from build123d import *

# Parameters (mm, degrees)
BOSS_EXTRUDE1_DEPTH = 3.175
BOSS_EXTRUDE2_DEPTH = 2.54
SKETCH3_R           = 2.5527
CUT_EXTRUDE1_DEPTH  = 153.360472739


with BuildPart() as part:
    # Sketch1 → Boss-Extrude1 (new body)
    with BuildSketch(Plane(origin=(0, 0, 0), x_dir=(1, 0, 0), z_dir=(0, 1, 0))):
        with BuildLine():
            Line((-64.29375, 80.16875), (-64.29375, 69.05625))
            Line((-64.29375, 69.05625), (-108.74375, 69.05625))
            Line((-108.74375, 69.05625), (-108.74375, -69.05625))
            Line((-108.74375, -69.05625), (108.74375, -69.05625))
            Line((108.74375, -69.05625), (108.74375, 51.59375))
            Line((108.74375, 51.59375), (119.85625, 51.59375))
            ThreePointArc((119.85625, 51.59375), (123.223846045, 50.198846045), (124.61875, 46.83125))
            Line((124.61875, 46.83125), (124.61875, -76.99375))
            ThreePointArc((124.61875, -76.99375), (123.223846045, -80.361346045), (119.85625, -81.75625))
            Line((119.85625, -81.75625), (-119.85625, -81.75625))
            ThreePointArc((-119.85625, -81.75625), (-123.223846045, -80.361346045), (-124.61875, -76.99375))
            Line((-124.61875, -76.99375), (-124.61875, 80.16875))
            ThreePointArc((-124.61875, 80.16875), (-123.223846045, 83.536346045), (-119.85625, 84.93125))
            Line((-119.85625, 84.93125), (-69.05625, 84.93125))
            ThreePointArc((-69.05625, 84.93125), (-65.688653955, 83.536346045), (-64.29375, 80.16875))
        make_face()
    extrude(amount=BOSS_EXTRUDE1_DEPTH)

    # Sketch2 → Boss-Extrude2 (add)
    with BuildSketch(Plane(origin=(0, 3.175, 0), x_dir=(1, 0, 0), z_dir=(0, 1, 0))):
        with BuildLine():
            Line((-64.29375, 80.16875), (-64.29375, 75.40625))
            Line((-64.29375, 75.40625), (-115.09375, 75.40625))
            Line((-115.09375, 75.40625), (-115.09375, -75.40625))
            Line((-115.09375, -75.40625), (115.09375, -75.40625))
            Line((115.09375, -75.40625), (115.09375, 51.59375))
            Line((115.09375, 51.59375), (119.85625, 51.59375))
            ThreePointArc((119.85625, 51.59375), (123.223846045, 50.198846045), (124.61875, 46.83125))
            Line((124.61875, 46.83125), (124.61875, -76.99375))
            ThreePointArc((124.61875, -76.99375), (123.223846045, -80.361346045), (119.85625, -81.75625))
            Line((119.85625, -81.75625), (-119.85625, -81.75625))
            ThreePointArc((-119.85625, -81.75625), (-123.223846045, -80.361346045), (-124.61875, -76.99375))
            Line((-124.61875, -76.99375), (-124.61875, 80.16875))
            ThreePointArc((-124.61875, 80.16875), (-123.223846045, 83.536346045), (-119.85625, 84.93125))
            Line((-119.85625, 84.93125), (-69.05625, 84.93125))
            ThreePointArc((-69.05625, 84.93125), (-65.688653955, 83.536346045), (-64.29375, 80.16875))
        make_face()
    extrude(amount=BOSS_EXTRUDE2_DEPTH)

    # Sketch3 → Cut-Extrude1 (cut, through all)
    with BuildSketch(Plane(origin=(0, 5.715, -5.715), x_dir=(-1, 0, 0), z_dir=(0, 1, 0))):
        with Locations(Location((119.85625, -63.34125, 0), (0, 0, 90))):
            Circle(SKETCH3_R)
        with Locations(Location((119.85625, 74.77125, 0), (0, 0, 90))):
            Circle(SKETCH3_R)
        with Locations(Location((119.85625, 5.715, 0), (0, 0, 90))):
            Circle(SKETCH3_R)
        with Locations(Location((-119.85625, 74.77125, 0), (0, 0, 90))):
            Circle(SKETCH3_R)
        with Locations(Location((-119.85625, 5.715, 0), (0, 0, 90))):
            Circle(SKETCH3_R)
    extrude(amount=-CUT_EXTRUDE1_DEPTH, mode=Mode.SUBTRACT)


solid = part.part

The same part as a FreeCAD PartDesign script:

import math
import FreeCAD as App
import Part
import Sketcher
Q = App.Units.Quantity

doc = App.newDocument("Part")
body = doc.addObject("PartDesign::Body", "Body")

# Sketch on XZ plane
sketch1 = doc.addObject("Sketcher::SketchObject", "Sketch")
body.addObject(sketch1)
sketch1.AttachmentSupport = (doc.XZ_Plane, [""])
sketch1.MapMode = "FlatFace"
sketch1.addGeometry([
    Part.LineSegment(App.Vector(-64.29375, -69.05625, 0), App.Vector(-64.29375, -80.16875, 0)),  # 0
    Part.ArcOfCircle(Part.Circle(App.Vector(-69.05625, -80.16875, 0), App.Vector(0, 0, 1), 4.7625), math.radians(-90), math.radians(0)),  # 1
    Part.LineSegment(App.Vector(-69.05625, -84.93125, 0), App.Vector(-119.85625, -84.93125, 0)),  # 2
    Part.ArcOfCircle(Part.Circle(App.Vector(-119.85625, -80.16875, 0), App.Vector(0, 0, 1), 4.7625), math.radians(-180), math.radians(-90)),  # 3
    Part.LineSegment(App.Vector(-124.61875, -80.16875, 0), App.Vector(-124.61875, 76.99375, 0)),  # 4
    Part.ArcOfCircle(Part.Circle(App.Vector(-119.85625, 76.99375, 0), App.Vector(0, 0, 1), 4.7625), math.radians(90), math.radians(180)),  # 5
    Part.LineSegment(App.Vector(-119.85625, 81.75625, 0), App.Vector(119.85625, 81.75625, 0)),  # 6
    Part.ArcOfCircle(Part.Circle(App.Vector(119.85625, 76.99375, 0), App.Vector(0, 0, 1), 4.7625), math.radians(0), math.radians(90)),  # 7
    Part.LineSegment(App.Vector(124.61875, 76.99375, 0), App.Vector(124.61875, -46.83125, 0)),  # 8
    Part.ArcOfCircle(Part.Circle(App.Vector(119.85625, -46.83125, 0), App.Vector(0, 0, 1), 4.7625), math.radians(-90), math.radians(0)),  # 9
    Part.LineSegment(App.Vector(119.85625, -51.59375, 0), App.Vector(108.74375, -51.59375, 0)),  # 10
    Part.LineSegment(App.Vector(108.74375, -51.59375, 0), App.Vector(108.74375, 69.05625, 0)),  # 11
    Part.LineSegment(App.Vector(108.74375, 69.05625, 0), App.Vector(-108.74375, 69.05625, 0)),  # 12
    Part.LineSegment(App.Vector(-108.74375, 69.05625, 0), App.Vector(-108.74375, -69.05625, 0)),  # 13
    Part.LineSegment(App.Vector(-108.74375, -69.05625, 0), App.Vector(-64.29375, -69.05625, 0)),  # 14
], False)
sketch1.addConstraint([
    Sketcher.Constraint("Tangent", 0, 2, 1, 2),
    Sketcher.Constraint("Tangent", 1, 1, 2, 1),
    Sketcher.Constraint("Tangent", 2, 2, 3, 2),
    Sketcher.Constraint("Tangent", 3, 1, 4, 1),
    Sketcher.Constraint("Tangent", 4, 2, 5, 2),
    Sketcher.Constraint("Tangent", 5, 1, 6, 1),
    Sketcher.Constraint("Tangent", 6, 2, 7, 2),
    Sketcher.Constraint("Tangent", 7, 1, 8, 1),
    Sketcher.Constraint("Tangent", 8, 2, 9, 2),
    Sketcher.Constraint("Tangent", 9, 1, 10, 1),
    Sketcher.Constraint("Coincident", 10, 2, 11, 1),
    Sketcher.Constraint("Coincident", 11, 2, 12, 1),
    Sketcher.Constraint("Coincident", 12, 2, 13, 1),
    Sketcher.Constraint("Coincident", 13, 2, 14, 1),
    Sketcher.Constraint("Coincident", 14, 2, 0, 1),
    Sketcher.Constraint("Vertical", 0),
    Sketcher.Constraint("Horizontal", 2),
    Sketcher.Constraint("Vertical", 4),
    Sketcher.Constraint("Horizontal", 6),
    Sketcher.Constraint("Vertical", 8),
    Sketcher.Constraint("Horizontal", 10),
    Sketcher.Constraint("Vertical", 11),
    Sketcher.Constraint("Horizontal", 12),
    Sketcher.Constraint("Vertical", 13),
    Sketcher.Constraint("Horizontal", 14),
    Sketcher.Constraint("Equal", 1, 3),
    Sketcher.Constraint("Equal", 3, 5),
    Sketcher.Constraint("Equal", 5, 7),
    Sketcher.Constraint("Equal", 7, 9),
    Sketcher.Constraint("Symmetric", 11, 2, 13, 2, -1, 1),
    Sketcher.Constraint("Equal", 10, 0),
    Sketcher.Constraint("DistanceX", 2, 2, 2, 1, Q("2 in")),
    Sketcher.Constraint("Radius", 1, Q("0.1875 in")),
    Sketcher.Constraint("DistanceX", 14, 1, 14, 2, Q("1.75 in")),
    Sketcher.Constraint("DistanceY", 11, 1, 11, 2, Q("4.75 in")),
    Sketcher.Constraint("DistanceY", 1, 1, 9, 3, Q("1.5 in")),
    Sketcher.Constraint("DistanceY", 11, 2, 6, 2, Q("0.5 in")),
    Sketcher.Constraint("DistanceX", 6, 1, 6, 2, Q("9.4375 in")),
    Sketcher.Constraint("DistanceX", 10, 2, 10, 1, Q("0.4375 in")),
])
pad1 = doc.addObject("PartDesign::Pad", "Pad")
body.addObject(pad1)
pad1.Profile = sketch1
pad1.Length = Q("0.125 in")
pad1.Reversed = True

# Sketch on XZ plane
sketch2 = doc.addObject("Sketcher::SketchObject", "Sketch001")
body.addObject(sketch2)
sketch2.AttachmentSupport = (doc.XZ_Plane, [""])
sketch2.MapMode = "FlatFace"
sketch2.AttachmentOffset = App.Placement(App.Vector(0, 0, -0.125 * 25.4), App.Rotation())
sketch2.addGeometry([
    Part.LineSegment(App.Vector(-64.29375, -75.40625, 0), App.Vector(-64.29375, -80.16875, 0)),  # 0
    Part.ArcOfCircle(Part.Circle(App.Vector(-69.05625, -80.16875, 0), App.Vector(0, 0, 1), 4.7625), math.radians(-90), math.radians(0)),  # 1
    Part.LineSegment(App.Vector(-69.05625, -84.93125, 0), App.Vector(-119.85625, -84.93125, 0)),  # 2
    Part.ArcOfCircle(Part.Circle(App.Vector(-119.85625, -80.16875, 0), App.Vector(0, 0, 1), 4.7625), math.radians(-180), math.radians(-90)),  # 3
    Part.LineSegment(App.Vector(-124.61875, -80.16875, 0), App.Vector(-124.61875, 76.99375, 0)),  # 4
    Part.ArcOfCircle(Part.Circle(App.Vector(-119.85625, 76.99375, 0), App.Vector(0, 0, 1), 4.7625), math.radians(90), math.radians(180)),  # 5
    Part.LineSegment(App.Vector(-119.85625, 81.75625, 0), App.Vector(119.85625, 81.75625, 0)),  # 6
    Part.ArcOfCircle(Part.Circle(App.Vector(119.85625, 76.99375, 0), App.Vector(0, 0, 1), 4.7625), math.radians(0), math.radians(90)),  # 7
    Part.LineSegment(App.Vector(124.61875, 76.99375, 0), App.Vector(124.61875, -46.83125, 0)),  # 8
    Part.ArcOfCircle(Part.Circle(App.Vector(119.85625, -46.83125, 0), App.Vector(0, 0, 1), 4.7625), math.radians(-90), math.radians(0)),  # 9
    Part.LineSegment(App.Vector(119.85625, -51.59375, 0), App.Vector(115.09375, -51.59375, 0)),  # 10
    Part.LineSegment(App.Vector(115.09375, -51.59375, 0), App.Vector(115.09375, 75.40625, 0)),  # 11
    Part.LineSegment(App.Vector(115.09375, 75.40625, 0), App.Vector(-115.09375, 75.40625, 0)),  # 12
    Part.LineSegment(App.Vector(-115.09375, 75.40625, 0), App.Vector(-115.09375, -75.40625, 0)),  # 13
    Part.LineSegment(App.Vector(-115.09375, -75.40625, 0), App.Vector(-64.29375, -75.40625, 0)),  # 14
], False)
sketch2.addConstraint([
    Sketcher.Constraint("Tangent", 0, 2, 1, 2),
    Sketcher.Constraint("Tangent", 1, 1, 2, 1),
    Sketcher.Constraint("Tangent", 2, 2, 3, 2),
    Sketcher.Constraint("Tangent", 3, 1, 4, 1),
    Sketcher.Constraint("Tangent", 4, 2, 5, 2),
    Sketcher.Constraint("Tangent", 5, 1, 6, 1),
    Sketcher.Constraint("Tangent", 6, 2, 7, 2),
    Sketcher.Constraint("Tangent", 7, 1, 8, 1),
    Sketcher.Constraint("Tangent", 8, 2, 9, 2),
    Sketcher.Constraint("Tangent", 9, 1, 10, 1),
    Sketcher.Constraint("Coincident", 10, 2, 11, 1),
    Sketcher.Constraint("Coincident", 11, 2, 12, 1),
    Sketcher.Constraint("Coincident", 12, 2, 13, 1),
    Sketcher.Constraint("Coincident", 13, 2, 14, 1),
    Sketcher.Constraint("Coincident", 14, 2, 0, 1),
    Sketcher.Constraint("Vertical", 0),
    Sketcher.Constraint("Horizontal", 2),
    Sketcher.Constraint("Vertical", 4),
    Sketcher.Constraint("Horizontal", 6),
    Sketcher.Constraint("Vertical", 8),
    Sketcher.Constraint("Horizontal", 10),
    Sketcher.Constraint("Vertical", 11),
    Sketcher.Constraint("Horizontal", 12),
    Sketcher.Constraint("Vertical", 13),
    Sketcher.Constraint("Horizontal", 14),
    Sketcher.Constraint("Equal", 1, 3),
    Sketcher.Constraint("Equal", 3, 5),
    Sketcher.Constraint("Equal", 5, 7),
    Sketcher.Constraint("Equal", 7, 9),
    Sketcher.Constraint("Symmetric", 11, 2, 13, 2, -1, 1),
    Sketcher.Constraint("Equal", 2, 14),
    Sketcher.Constraint("Equal", 10, 0),
    Sketcher.Constraint("DistanceX", 2, 2, 2, 1, Q("2 in")),
    Sketcher.Constraint("DistanceY", 11, 1, 11, 2, Q("5 in")),
    Sketcher.Constraint("Radius", 1, Q("0.1875 in")),
    Sketcher.Constraint("DistanceY", 1, 1, 9, 3, Q("1.5 in")),
    Sketcher.Constraint("DistanceX", 6, 1, 6, 2, Q("9.4375 in")),
    Sketcher.Constraint("DistanceX", 10, 2, 10, 1, Q("0.1875 in")),
    Sketcher.Constraint("DistanceY", 4, 1, 4, 2, Q("6.1875 in")),
])
pad2 = doc.addObject("PartDesign::Pad", "Pad001")
body.addObject(pad2)
pad2.Profile = sketch2
pad2.Length = Q("0.1 in")
pad2.Reversed = True

# Sketch on XZ plane
sketch3 = doc.addObject("Sketcher::SketchObject", "Sketch002")
body.addObject(sketch3)
sketch3.AttachmentSupport = (doc.XZ_Plane, [""])
sketch3.MapMode = "FlatFace"
sketch3.AttachmentOffset = App.Placement(App.Vector(0, 0, -0.225 * 25.4), App.Rotation())
sketch3.addGeometry([
    Part.Circle(App.Vector(-119.85625, -69.05625, 0), App.Vector(0, 0, 1), 2.5527),  # 0
    Part.Circle(App.Vector(-119.85625, 69.05625, 0), App.Vector(0, 0, 1), 2.5527),  # 1
    Part.Circle(App.Vector(-119.85625, 0, 0), App.Vector(0, 0, 1), 2.5527),  # 2
    Part.Circle(App.Vector(119.85625, 69.05625, 0), App.Vector(0, 0, 1), 2.5527),  # 3
    Part.Circle(App.Vector(119.85625, 0, 0), App.Vector(0, 0, 1), 2.5527),  # 4
], False)
sketch3.addConstraint([
    Sketcher.Constraint("Equal", 0, 1),
    Sketcher.Constraint("Equal", 1, 2),
    Sketcher.Constraint("Equal", 2, 3),
    Sketcher.Constraint("Equal", 3, 4),
    Sketcher.Constraint("Symmetric", 0, 3, 3, 3, -1, 1),
    Sketcher.Constraint("Symmetric", 2, 3, 4, 3, -1, 1),
    Sketcher.Constraint("Symmetric", 1, 3, 3, 3, -2),
    Sketcher.Constraint("PointOnObject", 2, 3, -1),
    Sketcher.Constraint("Vertical", 1, 3, 2, 3),
    Sketcher.Constraint("Diameter", 0, Q("0.201 in")),
    Sketcher.Constraint("DistanceX", 0, 3, -1, 1, Q("4.71875 in")),
    Sketcher.Constraint("DistanceY", 0, 3, -1, 1, Q("2.71875 in")),
])
pocket1 = doc.addObject("PartDesign::Pocket", "Pocket")
body.addObject(pocket1)
pocket1.Profile = sketch3
pocket1.Type = "ThroughAll"
pocket1.Reversed = True

doc.recompute()
